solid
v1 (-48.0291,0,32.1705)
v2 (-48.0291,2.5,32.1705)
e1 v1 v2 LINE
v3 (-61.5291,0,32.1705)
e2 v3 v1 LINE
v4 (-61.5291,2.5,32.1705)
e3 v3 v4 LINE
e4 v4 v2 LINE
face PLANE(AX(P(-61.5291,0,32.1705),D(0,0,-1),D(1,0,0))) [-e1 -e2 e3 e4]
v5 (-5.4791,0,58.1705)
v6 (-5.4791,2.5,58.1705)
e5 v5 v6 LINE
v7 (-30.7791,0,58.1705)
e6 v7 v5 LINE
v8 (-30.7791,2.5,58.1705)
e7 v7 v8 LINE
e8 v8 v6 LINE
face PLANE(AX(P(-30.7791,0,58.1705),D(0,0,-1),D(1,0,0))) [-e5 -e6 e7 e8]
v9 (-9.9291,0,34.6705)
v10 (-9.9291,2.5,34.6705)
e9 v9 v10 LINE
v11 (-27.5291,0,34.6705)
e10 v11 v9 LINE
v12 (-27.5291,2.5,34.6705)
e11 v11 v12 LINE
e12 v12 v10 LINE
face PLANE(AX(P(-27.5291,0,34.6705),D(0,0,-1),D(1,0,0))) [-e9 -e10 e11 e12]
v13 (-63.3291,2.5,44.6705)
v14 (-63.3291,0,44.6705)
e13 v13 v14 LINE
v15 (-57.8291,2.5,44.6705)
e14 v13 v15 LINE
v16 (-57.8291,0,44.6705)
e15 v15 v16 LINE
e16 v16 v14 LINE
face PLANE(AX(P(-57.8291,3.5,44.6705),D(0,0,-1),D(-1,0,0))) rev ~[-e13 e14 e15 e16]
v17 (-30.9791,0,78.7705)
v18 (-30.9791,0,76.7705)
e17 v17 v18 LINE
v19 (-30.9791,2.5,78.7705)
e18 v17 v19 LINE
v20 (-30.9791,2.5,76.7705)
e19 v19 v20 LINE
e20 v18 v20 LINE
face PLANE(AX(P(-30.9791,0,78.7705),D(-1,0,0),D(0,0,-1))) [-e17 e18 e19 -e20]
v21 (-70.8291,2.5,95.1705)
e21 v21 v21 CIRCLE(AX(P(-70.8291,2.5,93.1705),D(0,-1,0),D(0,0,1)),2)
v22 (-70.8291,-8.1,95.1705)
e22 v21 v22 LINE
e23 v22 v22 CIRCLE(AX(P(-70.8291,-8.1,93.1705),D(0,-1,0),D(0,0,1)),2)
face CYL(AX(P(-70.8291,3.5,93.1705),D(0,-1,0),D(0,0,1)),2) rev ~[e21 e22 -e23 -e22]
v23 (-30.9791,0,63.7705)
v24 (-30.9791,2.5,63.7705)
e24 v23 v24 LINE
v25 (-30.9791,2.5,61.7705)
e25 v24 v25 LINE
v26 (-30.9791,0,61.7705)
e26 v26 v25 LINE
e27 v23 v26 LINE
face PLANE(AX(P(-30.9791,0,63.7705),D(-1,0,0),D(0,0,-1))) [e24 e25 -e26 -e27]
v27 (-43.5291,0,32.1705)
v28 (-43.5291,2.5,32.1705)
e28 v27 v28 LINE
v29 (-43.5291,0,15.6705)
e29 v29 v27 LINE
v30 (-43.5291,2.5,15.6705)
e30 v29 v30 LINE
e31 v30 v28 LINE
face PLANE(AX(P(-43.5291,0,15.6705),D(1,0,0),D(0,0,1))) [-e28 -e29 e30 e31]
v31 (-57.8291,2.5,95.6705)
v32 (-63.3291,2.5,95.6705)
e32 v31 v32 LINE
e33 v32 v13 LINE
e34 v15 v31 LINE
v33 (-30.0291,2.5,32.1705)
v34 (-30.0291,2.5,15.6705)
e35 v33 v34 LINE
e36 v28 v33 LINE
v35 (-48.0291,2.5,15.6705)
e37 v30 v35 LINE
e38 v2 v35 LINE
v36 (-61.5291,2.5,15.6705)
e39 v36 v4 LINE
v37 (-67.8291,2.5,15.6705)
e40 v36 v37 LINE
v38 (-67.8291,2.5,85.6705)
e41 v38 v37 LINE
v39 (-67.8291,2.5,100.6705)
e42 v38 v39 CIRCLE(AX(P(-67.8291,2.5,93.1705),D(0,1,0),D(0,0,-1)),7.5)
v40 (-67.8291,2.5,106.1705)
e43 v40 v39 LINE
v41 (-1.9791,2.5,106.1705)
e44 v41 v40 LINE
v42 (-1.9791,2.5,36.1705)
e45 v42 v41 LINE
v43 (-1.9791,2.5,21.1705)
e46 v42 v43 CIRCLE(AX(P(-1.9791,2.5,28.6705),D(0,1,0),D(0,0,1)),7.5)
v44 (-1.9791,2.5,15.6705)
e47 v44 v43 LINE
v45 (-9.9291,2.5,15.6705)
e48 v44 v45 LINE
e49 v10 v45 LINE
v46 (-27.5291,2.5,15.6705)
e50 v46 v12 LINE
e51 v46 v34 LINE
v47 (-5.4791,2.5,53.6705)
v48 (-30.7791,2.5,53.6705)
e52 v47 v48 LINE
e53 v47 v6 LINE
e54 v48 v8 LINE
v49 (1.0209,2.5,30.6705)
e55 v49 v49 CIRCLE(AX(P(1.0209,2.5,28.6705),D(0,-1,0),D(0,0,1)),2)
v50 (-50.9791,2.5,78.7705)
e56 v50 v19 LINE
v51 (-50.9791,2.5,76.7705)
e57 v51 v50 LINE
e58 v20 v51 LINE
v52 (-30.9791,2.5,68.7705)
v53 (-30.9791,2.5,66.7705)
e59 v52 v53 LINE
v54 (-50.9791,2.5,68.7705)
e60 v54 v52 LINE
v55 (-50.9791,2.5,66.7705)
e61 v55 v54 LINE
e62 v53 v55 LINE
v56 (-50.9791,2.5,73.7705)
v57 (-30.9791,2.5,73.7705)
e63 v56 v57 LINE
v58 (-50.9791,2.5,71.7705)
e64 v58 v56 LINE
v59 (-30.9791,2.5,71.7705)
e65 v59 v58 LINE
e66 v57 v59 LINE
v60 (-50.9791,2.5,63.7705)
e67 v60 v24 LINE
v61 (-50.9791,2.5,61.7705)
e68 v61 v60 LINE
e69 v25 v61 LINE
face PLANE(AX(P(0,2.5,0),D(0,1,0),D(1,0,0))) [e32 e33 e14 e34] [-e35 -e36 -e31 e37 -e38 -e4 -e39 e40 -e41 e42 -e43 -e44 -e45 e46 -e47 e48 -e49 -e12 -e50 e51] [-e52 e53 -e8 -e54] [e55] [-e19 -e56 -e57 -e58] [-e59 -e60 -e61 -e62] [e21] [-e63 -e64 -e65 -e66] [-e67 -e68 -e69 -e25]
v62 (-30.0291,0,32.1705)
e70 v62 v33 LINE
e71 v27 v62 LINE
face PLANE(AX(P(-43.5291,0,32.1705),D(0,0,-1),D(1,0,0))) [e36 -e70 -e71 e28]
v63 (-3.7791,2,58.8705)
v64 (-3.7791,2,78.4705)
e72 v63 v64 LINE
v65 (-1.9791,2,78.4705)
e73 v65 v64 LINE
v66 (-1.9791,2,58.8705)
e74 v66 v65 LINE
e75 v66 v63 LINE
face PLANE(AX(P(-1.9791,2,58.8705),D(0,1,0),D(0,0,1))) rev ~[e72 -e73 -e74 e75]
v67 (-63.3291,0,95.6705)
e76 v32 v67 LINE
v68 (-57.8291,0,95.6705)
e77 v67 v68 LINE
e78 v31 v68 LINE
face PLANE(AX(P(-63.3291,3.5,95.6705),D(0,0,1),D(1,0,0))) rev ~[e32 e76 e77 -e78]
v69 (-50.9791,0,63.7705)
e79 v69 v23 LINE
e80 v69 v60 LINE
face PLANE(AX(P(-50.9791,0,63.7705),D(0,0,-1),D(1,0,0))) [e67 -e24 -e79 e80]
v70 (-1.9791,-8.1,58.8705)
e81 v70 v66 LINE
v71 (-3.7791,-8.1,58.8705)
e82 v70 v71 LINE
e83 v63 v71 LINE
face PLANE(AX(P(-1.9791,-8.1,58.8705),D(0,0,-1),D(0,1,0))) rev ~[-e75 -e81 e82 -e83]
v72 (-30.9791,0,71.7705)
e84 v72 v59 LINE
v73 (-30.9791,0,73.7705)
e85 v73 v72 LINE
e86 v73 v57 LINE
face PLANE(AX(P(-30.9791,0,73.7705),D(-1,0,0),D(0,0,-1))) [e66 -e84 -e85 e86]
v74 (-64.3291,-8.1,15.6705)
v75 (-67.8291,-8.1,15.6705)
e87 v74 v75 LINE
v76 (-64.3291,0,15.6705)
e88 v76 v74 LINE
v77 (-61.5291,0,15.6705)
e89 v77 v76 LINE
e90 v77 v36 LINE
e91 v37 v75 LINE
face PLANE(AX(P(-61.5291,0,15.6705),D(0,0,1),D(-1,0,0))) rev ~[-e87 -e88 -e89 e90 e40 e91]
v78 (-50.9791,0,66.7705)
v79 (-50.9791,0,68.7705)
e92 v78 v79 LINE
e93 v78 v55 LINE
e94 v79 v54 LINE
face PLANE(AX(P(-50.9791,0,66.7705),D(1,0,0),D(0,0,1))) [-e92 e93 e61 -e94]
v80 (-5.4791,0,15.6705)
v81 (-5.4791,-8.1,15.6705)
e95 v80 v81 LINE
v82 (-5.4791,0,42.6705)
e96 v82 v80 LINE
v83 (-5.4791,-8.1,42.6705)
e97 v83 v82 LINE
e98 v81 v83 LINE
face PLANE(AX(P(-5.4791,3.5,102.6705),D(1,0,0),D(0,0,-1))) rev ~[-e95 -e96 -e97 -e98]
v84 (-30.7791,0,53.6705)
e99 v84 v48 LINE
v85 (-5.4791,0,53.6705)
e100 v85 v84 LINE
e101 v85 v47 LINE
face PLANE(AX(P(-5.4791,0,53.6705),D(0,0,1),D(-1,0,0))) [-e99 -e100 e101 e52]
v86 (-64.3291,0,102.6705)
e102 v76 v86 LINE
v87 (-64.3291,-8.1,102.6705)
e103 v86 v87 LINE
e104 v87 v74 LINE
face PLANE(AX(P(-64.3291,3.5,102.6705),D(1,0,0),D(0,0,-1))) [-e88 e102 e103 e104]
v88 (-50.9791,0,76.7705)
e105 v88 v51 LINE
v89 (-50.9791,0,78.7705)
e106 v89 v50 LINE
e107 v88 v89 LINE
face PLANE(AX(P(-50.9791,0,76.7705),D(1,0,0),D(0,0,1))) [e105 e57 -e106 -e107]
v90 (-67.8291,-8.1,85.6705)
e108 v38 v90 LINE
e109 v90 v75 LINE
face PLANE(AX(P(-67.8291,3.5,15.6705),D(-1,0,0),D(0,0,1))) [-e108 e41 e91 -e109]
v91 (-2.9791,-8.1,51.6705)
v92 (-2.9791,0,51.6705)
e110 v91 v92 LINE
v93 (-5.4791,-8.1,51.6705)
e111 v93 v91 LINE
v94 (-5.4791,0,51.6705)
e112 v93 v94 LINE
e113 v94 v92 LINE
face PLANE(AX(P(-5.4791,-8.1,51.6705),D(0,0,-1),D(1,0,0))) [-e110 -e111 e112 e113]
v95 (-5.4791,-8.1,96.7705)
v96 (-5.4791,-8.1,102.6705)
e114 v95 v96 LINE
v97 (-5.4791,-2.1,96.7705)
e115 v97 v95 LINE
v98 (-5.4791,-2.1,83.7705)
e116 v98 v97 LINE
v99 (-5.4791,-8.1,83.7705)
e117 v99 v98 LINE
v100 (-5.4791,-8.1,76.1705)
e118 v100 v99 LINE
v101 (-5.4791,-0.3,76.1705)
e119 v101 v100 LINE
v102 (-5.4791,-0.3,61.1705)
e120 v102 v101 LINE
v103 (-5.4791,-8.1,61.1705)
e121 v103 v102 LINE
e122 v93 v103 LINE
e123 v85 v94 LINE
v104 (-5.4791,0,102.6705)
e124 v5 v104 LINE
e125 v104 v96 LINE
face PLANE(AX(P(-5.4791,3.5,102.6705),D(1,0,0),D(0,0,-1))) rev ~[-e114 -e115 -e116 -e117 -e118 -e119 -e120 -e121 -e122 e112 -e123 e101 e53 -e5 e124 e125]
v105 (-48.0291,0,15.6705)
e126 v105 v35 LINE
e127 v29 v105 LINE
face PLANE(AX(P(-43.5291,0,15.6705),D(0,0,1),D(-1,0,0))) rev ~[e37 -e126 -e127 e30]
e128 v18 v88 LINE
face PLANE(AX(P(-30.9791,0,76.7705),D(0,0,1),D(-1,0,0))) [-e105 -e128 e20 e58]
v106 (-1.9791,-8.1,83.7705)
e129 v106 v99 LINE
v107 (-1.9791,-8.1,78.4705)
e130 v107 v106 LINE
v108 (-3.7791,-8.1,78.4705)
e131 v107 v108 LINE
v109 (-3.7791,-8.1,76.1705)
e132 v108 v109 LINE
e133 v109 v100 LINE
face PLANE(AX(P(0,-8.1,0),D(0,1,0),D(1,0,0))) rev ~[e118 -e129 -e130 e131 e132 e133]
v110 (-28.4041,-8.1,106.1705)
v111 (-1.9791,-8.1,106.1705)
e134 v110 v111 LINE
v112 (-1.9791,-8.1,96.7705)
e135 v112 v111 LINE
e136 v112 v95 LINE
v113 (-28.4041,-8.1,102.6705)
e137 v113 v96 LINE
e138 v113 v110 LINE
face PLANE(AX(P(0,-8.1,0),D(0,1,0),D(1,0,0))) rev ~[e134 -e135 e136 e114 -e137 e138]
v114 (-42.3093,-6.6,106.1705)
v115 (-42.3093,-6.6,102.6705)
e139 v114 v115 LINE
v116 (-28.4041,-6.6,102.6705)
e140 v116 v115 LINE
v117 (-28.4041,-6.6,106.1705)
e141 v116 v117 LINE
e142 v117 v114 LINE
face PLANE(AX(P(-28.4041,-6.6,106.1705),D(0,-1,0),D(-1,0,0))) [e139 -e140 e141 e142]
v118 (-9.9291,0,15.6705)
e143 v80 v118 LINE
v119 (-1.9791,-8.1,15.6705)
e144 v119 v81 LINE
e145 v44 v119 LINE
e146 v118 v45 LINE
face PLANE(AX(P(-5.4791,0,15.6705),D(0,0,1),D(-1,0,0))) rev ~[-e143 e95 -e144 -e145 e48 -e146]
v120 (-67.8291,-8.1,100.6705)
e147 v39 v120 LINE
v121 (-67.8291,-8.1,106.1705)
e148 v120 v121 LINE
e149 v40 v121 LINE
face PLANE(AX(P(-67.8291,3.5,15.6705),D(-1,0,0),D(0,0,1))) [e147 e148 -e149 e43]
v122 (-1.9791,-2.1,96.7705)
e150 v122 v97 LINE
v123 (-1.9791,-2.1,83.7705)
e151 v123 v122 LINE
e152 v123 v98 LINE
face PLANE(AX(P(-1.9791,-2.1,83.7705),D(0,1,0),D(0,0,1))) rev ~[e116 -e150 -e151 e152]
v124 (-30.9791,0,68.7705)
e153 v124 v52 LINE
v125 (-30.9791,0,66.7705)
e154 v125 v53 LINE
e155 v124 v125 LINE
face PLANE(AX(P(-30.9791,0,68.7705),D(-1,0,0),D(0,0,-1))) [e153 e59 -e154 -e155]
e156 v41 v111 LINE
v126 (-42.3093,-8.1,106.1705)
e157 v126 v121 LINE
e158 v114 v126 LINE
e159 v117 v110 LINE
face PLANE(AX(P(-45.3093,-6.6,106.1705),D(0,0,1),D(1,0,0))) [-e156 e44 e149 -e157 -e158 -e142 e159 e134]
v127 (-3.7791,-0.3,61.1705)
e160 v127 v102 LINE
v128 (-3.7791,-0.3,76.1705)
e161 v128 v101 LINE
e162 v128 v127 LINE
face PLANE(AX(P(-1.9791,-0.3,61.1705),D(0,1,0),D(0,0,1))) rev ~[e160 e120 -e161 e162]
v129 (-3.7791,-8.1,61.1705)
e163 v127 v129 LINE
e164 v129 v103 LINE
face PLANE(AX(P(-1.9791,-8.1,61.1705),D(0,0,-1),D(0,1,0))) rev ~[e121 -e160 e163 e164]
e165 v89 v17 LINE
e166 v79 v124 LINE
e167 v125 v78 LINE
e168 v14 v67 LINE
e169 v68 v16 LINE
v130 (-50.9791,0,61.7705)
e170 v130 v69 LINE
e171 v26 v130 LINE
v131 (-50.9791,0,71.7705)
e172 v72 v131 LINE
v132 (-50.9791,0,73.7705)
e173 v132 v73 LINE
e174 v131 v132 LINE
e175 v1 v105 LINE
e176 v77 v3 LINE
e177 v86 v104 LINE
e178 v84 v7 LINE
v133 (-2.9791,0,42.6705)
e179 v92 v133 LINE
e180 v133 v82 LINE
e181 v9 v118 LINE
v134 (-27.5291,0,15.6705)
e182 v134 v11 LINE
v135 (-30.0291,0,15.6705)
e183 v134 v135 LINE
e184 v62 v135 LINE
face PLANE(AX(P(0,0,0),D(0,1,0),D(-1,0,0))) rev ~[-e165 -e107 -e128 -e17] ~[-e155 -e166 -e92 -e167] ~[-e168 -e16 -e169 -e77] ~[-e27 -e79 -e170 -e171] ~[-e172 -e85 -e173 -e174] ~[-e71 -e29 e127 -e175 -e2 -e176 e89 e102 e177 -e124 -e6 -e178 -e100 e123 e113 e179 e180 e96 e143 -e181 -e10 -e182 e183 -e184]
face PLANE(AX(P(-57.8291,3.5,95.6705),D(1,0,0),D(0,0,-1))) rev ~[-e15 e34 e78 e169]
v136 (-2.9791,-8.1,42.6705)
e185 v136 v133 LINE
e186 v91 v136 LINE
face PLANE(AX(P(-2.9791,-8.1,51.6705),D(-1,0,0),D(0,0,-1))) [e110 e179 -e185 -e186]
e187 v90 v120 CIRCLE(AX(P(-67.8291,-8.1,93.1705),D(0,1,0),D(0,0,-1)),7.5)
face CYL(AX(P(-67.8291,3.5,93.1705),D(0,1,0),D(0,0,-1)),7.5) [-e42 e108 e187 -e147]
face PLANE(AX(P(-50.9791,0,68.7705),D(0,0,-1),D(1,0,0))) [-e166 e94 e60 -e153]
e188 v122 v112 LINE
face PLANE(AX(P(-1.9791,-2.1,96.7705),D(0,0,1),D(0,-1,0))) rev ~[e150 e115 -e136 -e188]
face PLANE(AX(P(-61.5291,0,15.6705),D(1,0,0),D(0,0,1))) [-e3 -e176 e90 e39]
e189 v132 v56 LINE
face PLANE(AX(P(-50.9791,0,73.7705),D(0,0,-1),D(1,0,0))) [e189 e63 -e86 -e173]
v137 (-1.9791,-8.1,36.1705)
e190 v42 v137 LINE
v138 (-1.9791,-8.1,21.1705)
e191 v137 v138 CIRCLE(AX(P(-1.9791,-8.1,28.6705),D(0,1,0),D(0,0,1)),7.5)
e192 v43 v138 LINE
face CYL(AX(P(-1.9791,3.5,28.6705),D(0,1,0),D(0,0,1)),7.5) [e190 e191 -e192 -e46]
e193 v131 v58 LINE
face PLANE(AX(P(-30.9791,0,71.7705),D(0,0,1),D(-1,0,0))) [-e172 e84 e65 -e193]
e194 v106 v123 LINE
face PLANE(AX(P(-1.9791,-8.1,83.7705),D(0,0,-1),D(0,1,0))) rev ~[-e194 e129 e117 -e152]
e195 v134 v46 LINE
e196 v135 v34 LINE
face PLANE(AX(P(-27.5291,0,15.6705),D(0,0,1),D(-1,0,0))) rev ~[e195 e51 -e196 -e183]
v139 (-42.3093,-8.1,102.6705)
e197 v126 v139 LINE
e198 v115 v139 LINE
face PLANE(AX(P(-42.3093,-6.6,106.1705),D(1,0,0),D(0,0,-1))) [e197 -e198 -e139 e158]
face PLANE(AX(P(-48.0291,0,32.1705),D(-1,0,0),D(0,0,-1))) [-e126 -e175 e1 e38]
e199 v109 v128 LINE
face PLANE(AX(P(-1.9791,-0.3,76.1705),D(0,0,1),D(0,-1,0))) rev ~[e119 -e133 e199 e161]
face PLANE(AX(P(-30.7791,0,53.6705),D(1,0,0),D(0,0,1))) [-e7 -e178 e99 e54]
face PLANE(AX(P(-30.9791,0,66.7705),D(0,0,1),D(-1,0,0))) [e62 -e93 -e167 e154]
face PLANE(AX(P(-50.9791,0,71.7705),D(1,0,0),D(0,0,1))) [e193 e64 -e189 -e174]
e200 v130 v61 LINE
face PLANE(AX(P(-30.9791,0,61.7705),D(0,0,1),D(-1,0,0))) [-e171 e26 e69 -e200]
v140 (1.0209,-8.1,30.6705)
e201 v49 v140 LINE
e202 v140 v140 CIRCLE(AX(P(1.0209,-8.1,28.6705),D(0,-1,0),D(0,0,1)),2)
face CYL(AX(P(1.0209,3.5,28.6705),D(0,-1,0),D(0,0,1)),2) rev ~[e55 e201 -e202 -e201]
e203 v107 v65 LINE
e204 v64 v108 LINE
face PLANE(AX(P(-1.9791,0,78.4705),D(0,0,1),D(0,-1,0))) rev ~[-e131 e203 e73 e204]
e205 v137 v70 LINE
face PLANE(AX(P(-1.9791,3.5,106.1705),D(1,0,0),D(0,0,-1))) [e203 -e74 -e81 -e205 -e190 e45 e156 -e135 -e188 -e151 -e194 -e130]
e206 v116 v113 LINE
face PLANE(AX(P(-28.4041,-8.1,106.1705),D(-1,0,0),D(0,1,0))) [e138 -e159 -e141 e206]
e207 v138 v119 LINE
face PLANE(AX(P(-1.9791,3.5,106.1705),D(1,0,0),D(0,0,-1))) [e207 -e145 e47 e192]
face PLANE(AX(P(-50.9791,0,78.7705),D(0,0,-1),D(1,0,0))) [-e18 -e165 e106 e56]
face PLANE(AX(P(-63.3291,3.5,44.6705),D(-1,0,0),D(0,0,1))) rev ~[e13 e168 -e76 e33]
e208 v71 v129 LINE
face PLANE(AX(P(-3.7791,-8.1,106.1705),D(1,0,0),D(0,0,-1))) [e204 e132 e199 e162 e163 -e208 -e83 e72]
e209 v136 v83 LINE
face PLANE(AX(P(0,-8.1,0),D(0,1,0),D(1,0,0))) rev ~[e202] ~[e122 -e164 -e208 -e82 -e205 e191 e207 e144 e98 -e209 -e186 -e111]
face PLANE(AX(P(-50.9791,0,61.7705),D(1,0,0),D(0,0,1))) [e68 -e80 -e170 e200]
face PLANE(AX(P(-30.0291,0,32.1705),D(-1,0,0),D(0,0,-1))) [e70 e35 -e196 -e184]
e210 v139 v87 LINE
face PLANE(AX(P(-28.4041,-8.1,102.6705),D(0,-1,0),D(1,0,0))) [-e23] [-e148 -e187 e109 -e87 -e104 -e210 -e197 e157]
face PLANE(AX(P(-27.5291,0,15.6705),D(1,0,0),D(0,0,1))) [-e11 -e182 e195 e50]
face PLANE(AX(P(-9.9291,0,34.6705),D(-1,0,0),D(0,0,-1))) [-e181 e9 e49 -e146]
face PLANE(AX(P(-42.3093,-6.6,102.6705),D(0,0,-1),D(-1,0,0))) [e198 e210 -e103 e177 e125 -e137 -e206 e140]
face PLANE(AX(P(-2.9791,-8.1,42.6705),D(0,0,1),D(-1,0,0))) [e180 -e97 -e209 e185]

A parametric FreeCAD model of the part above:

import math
import FreeCAD as App
import Part
import Sketcher

V = App.Vector


def add_polygon(sketch, points):
    """Adds a closed chain of lines whose ends are joined by coincident constraints."""
    first, n = sketch.GeometryCount, len(points)
    for a, b in zip(points, points[1:] + points[:1]):
        sketch.addGeometry(Part.LineSegment(App.Vector(*a, 0), App.Vector(*b, 0)), False)
    for i in range(n):
        sketch.addConstraint(Sketcher.Constraint("Coincident", first + i, 2, first + (i + 1) % n, 1))

doc = App.newDocument("Part")
body = doc.addObject("PartDesign::Body", "Body")

# Sketch on XZ plane
sketch1 = body.newObject("Sketcher::SketchObject", "Sketch")
sketch1.AttachmentSupport = (doc.getObject("XZ_Plane"), [""])
sketch1.MapMode = "FlatFace"
add_polygon(sketch1, [(-61.5, 15.7), (-64.3, 15.7), (-64.3, 102.7), (-5.5, 102.7), (-5.5, 58.2), (-30.8, 58.2), (-30.8, 53.7), (-5.5, 53.7), (-5.5, 15.7), (-9.9, 15.7), (-9.9, 34.7), (-27.5, 34.7), (-27.5, 15.7), (-30, 15.7), (-30, 32.2), (-43.5, 32.2), (-43.5, 15.7), (-48, 15.7), (-48, 32.2), (-61.5, 32.2)])  # lines 0-19
add_polygon(sketch1, [(-31, 63.8), (-51, 63.8), (-51, 61.8), (-31, 61.8)])  # lines 20-23
add_polygon(sketch1, [(-31, 68.8), (-51, 68.8), (-51, 66.8), (-31, 66.8)])  # lines 24-27
add_polygon(sketch1, [(-31, 73.8), (-51, 73.8), (-51, 71.8), (-31, 71.8)])  # lines 28-31
add_polygon(sketch1, [(-31, 78.8), (-51, 78.8), (-51, 76.8), (-31, 76.8)])  # lines 32-35
sketch1.addConstraint(Sketcher.Constraint("Horizontal", 0))
sketch1.addConstraint(Sketcher.Constraint("Vertical", 1))
sketch1.addConstraint(Sketcher.Constraint("Horizontal", 2))
sketch1.addConstraint(Sketcher.Constraint("Vertical", 3))
sketch1.addConstraint(Sketcher.Constraint("Horizontal", 4))
sketch1.addConstraint(Sketcher.Constraint("Vertical", 5))
sketch1.addConstraint(Sketcher.Constraint("Horizontal", 6))
sketch1.addConstraint(Sketcher.Constraint("Vertical", 7))
sketch1.addConstraint(Sketcher.Constraint("Horizontal", 8))
sketch1.addConstraint(Sketcher.Constraint("Vertical", 9))
sketch1.addConstraint(Sketcher.Constraint("Horizontal", 10))
sketch1.addConstraint(Sketcher.Constraint("Vertical", 11))
sketch1.addConstraint(Sketcher.Constraint("Horizontal", 12))
sketch1.addConstraint(Sketcher.Constraint("Vertical", 13))
sketch1.addConstraint(Sketcher.Constraint("Horizontal", 14))
sketch1.addConstraint(Sketcher.Constraint("Vertical", 15))
sketch1.addConstraint(Sketcher.Constraint("Horizontal", 16))
sketch1.addConstraint(Sketcher.Constraint("Vertical", 17))
sketch1.addConstraint(Sketcher.Constraint("Horizontal", 18))
sketch1.addConstraint(Sketcher.Constraint("Vertical", 19))
sketch1.addConstraint(Sketcher.Constraint("Horizontal", 20))
sketch1.addConstraint(Sketcher.Constraint("Vertical", 21))
sketch1.addConstraint(Sketcher.Constraint("Horizontal", 22))
sketch1.addConstraint(Sketcher.Constraint("Vertical", 23))
sketch1.addConstraint(Sketcher.Constraint("Horizontal", 24))
sketch1.addConstraint(Sketcher.Constraint("Vertical", 25))
sketch1.addConstraint(Sketcher.Constraint("Horizontal", 26))
sketch1.addConstraint(Sketcher.Constraint("Vertical", 27))
sketch1.addConstraint(Sketcher.Constraint("Horizontal", 28))
sketch1.addConstraint(Sketcher.Constraint("Vertical", 29))
sketch1.addConstraint(Sketcher.Constraint("Horizontal", 30))
sketch1.addConstraint(Sketcher.Constraint("Vertical", 31))
sketch1.addConstraint(Sketcher.Constraint("Horizontal", 32))
sketch1.addConstraint(Sketcher.Constraint("Vertical", 33))
sketch1.addConstraint(Sketcher.Constraint("Horizontal", 34))
sketch1.addConstraint(Sketcher.Constraint("Vertical", 35))
sketch1.addConstraint(Sketcher.Constraint("Horizontal", 0, 2, 7, 2))
sketch1.addConstraint(Sketcher.Constraint("Horizontal", 8, 2, 11, 2))
sketch1.addConstraint(Sketcher.Constraint("Horizontal", 12, 2, 15, 2))
sketch1.addConstraint(Sketcher.Constraint("Horizontal", 14, 2, 17, 2))
sketch1.addConstraint(Sketcher.Constraint("Vertical", 3, 2, 6, 2))
sketch1.addConstraint(Sketcher.Constraint("Vertical", 21, 2, 24, 2))
sketch1.addConstraint(Sketcher.Constraint("Vertical", 23, 2, 26, 2))
sketch1.addConstraint(Sketcher.Constraint("Vertical", 25, 2, 28, 2))
sketch1.addConstraint(Sketcher.Constraint("Vertical", 27, 2, 30, 2))
sketch1.addConstraint(Sketcher.Constraint("Vertical", 29, 2, 32, 2))
sketch1.addConstraint(Sketcher.Constraint("Vertical", 31, 2, 34, 2))
sketch1.addConstraint(Sketcher.Constraint("Equal", 14, 18))
sketch1.addConstraint(Sketcher.Constraint("Equal", 16, 5))
sketch1.addConstraint(Sketcher.Constraint("Equal", 23, 25))
sketch1.addConstraint(Sketcher.Constraint("Equal", 27, 29))
sketch1.addConstraint(Sketcher.Constraint("Equal", 31, 33))
sketch1.addConstraint(Sketcher.Constraint("DistanceY", 1, 1, 1, 2, 87.0))
sketch1.addConstraint(Sketcher.Constraint("DistanceY", 7, 2, 7, 1, 38.0))
sketch1.addConstraint(Sketcher.Constraint("DistanceY", 9, 1, 9, 2, 19.0))
sketch1.addConstraint(Sketcher.Constraint("DistanceX", 0, 2, 0, 1, 2.8))
sketch1.addConstraint(Sketcher.Constraint("DistanceX", 4, 2, 4, 1, 25.3))
sketch1.addConstraint(Sketcher.Constraint("DistanceX", 10, 2, 10, 1, 17.6))
sketch1.addConstraint(Sketcher.Constraint("DistanceX", 12, 2, 12, 1, 2.5))
sketch1.addConstraint(Sketcher.Constraint("DistanceX", 14, 2, 14, 1, 13.5))
sketch1.addConstraint(Sketcher.Constraint("DistanceX", 16, 2, 16, 1, 4.5))
sketch1.addConstraint(Sketcher.Constraint("DistanceY", 20, 2, 29, 2, 8.0))
sketch1.addConstraint(Sketcher.Constraint("DistanceY", 24, 2, 33, 2, 8.0))
sketch1.addConstraint(Sketcher.Constraint("DistanceX", 8, 2, 8, 1, 4.45))
sketch1.addConstraint(Sketcher.Constraint("DistanceY", 13, 2, 10, 2, 2.5))
sketch1.addConstraint(Sketcher.Constraint("DistanceX", 20, 2, 20, 1, 20.0))
sketch1.addConstraint(Sketcher.Constraint("DistanceY", 21, 2, 21, 1, 2.0))
sketch1.addConstraint(Sketcher.Constraint("DistanceY", 20, 2, 24, 2, 5.0))
sketch1.addConstraint(Sketcher.Constraint("DistanceX", 20, 2, 4, 2, 20.2))
sketch1.addConstraint(Sketcher.Constraint("DistanceY", 4, 2, 20, 2, 5.6))
sketch1.addConstraint(Sketcher.Constraint("DistanceX", 0, 2, -1, 1, 64.329))
sketch1.addConstraint(Sketcher.Constraint("DistanceY", -1, 1, 0, 2, 15.6705))
pad1 = body.newObject("PartDesign::Pad", "Pad")
pad1.Profile = sketch1
pad1.Length = 3.5
pad1.Reversed = True

# Sketch on XZ plane
sketch2 = body.newObject("Sketcher::SketchObject", "Sketch001")
sketch2.AttachmentSupport = (doc.getObject("XZ_Plane"), [""])
sketch2.MapMode = "FlatFace"
sketch2.AttachmentOffset = App.Placement(V(0, 0, -3.5), App.Rotation())
add_polygon(sketch2, [(-58, 96), (-58, 45), (-63, 45), (-63, 96)])  # lines 0-3
sketch2.addConstraint(Sketcher.Constraint("Vertical", 0))
sketch2.addConstraint(Sketcher.Constraint("Horizontal", 1))
sketch2.addConstraint(Sketcher.Constraint("Vertical", 2))
sketch2.addConstraint(Sketcher.Constraint("Horizontal", 3))
sketch2.addConstraint(Sketcher.Constraint("DistanceY", 0, 2, 0, 1, 51.0))
sketch2.addConstraint(Sketcher.Constraint("DistanceX", 1, 2, 1, 1, 5.5))
sketch2.addConstraint(Sketcher.Constraint("DistanceX", 0, 2, -1, 1, 57.829))
sketch2.addConstraint(Sketcher.Constraint("DistanceY", -1, 1, 0, 2, 44.6705))
pocket1 = body.newObject("PartDesign::Pocket", "Pocket")
pocket1.Profile = sketch2
pocket1.Type = "ThroughAll"
pocket1.Reversed = True

# Sketch on XZ plane
sketch3 = body.newObject("Sketcher::SketchObject", "Sketch002")
sketch3.AttachmentSupport = (doc.getObject("XZ_Plane"), [""])
sketch3.MapMode = "FlatFace"
sketch3.AttachmentOffset = App.Placement(V(0, 0, -3.5), App.Rotation())
add_polygon(sketch3, [(-5.5, 102.7), (-64.3, 102.7), (-64.3, 15.7), (-67.8, 15.7), (-67.8, 106.2), (-2, 106.2), (-2, 15.7), (-5.5, 15.7)])  # lines 0-7
sketch3.addConstraint(Sketcher.Constraint("Horizontal", 0))
sketch3.addConstraint(Sketcher.Constraint("Vertical", 1))
sketch3.addConstraint(Sketcher.Constraint("Horizontal", 2))
sketch3.addConstraint(Sketcher.Constraint("Vertical", 3))
sketch3.addConstraint(Sketcher.Constraint("Horizontal", 4))
sketch3.addConstraint(Sketcher.Constraint("Vertical", 5))
sketch3.addConstraint(Sketcher.Constraint("Horizontal", 6))
sketch3.addConstraint(Sketcher.Constraint("Vertical", 7))
sketch3.addConstraint(Sketcher.Constraint("Horizontal", 2, 2, 5, 2))
sketch3.addConstraint(Sketcher.Constraint("Equal", 2, 6))
sketch3.addConstraint(Sketcher.Constraint("DistanceX", 2, 2, 2, 1, 3.5))
sketch3.addConstraint(Sketcher.Constraint("DistanceY", 0, 2, 3, 2, 3.5))
sketch3.addConstraint(Sketcher.Constraint("DistanceY", 1, 2, 1, 1, 87.0))
sketch3.addConstraint(Sketcher.Constraint("DistanceX", 0, 2, 0, 1, 58.85))
sketch3.addConstraint(Sketcher.Constraint("DistanceX", 0, 2, -1, 1, 64.329))
sketch3.addConstraint(Sketcher.Constraint("DistanceY", -1, 1, 0, 2, 102.6705))
pad2 = body.newObject("PartDesign::Pad", "Pad001")
pad2.Profile = sketch3
pad2.Length = 11.6

# Sketch on XZ plane
sketch4 = body.newObject("Sketcher::SketchObject", "Sketch003")
sketch4.AttachmentSupport = (doc.getObject("XZ_Plane"), [""])
sketch4.MapMode = "FlatFace"
sketch4.AttachmentOffset = App.Placement(V(0, 0, -3.5), App.Rotation())
sketch4.addGeometry(Part.LineSegment(V(-2, 21, 0), V(-2, 36, 0)), False)
sketch4.addGeometry(Part.ArcOfCircle(Part.Circle(V(-2, 29, 0), V(0, 0, 1), 7), math.radians(-90), math.radians(90)), False)
sketch4.addGeometry(Part.LineSegment(V(-2, 86, 0), V(-2, 101, 0)), False)
sketch4.addGeometry(Part.ArcOfCircle(Part.Circle(V(-2, 93, 0), V(0, 0, 1), 8), math.radians(-90), math.radians(90)), False)
sketch4.addGeometry(Part.LineSegment(V(-68, 101, 0), V(-68, 86, 0)), False)
sketch4.addGeometry(Part.ArcOfCircle(Part.Circle(V(-68, 93, 0), V(0, 0, 1), 8), math.radians(90), math.radians(270)), False)
sketch4.addGeometry(Part.LineSegment(V(-68, 36, 0), V(-68, 21, 0)), False)
sketch4.addGeometry(Part.ArcOfCircle(Part.Circle(V(-68, 29, 0), V(0, 0, 1), 8), math.radians(90), math.radians(270)), False)
sketch4.addConstraint(Sketcher.Constraint("Coincident", 0, 1, 1, 1))
sketch4.addConstraint(Sketcher.Constraint("Coincident", 1, 2, 0, 2))
sketch4.addConstraint(Sketcher.Constraint("Coincident", 2, 1, 3, 1))
sketch4.addConstraint(Sketcher.Constraint("Coincident", 3, 2, 2, 2))
sketch4.addConstraint(Sketcher.Constraint("Coincident", 4, 1, 5, 1))
sketch4.addConstraint(Sketcher.Constraint("Coincident", 5, 2, 4, 2))
sketch4.addConstraint(Sketcher.Constraint("Coincident", 6, 1, 7, 1))
sketch4.addConstraint(Sketcher.Constraint("Coincident", 7, 2, 6, 2))
sketch4.addConstraint(Sketcher.Constraint("Vertical", 0))
sketch4.addConstraint(Sketcher.Constraint("Vertical", 2))
sketch4.addConstraint(Sketcher.Constraint("Vertical", 4))
sketch4.addConstraint(Sketcher.Constraint("Vertical", 6))
sketch4.addConstraint(Sketcher.Constraint("Equal", 1, 3))
sketch4.addConstraint(Sketcher.Constraint("Equal", 3, 5))
sketch4.addConstraint(Sketcher.Constraint("Equal", 5, 7))
sketch4.addConstraint(Sketcher.Constraint("Horizontal", 3, 3, 5, 3))
sketch4.addConstraint(Sketcher.Constraint("Horizontal", 1, 3, 7, 3))
sketch4.addConstraint(Sketcher.Constraint("Vertical", 1, 3, 3, 3))
sketch4.addConstraint(Sketcher.Constraint("Vertical", 5, 3, 7, 3))
sketch4.addConstraint(Sketcher.Constraint("Vertical", 3, 3, 0, 1))
sketch4.addConstraint(Sketcher.Constraint("Vertical", 1, 2, 2, 1))
sketch4.addConstraint(Sketcher.Constraint("Vertical", 7, 3, 4, 1))
sketch4.addConstraint(Sketcher.Constraint("Vertical", 5, 2, 6, 1))
sketch4.addConstraint(Sketcher.Constraint("Radius", 1, 7.5))
sketch4.addConstraint(Sketcher.Constraint("DistanceY", 0, 1, 3, 3, 72.0))
sketch4.addConstraint(Sketcher.Constraint("DistanceX", 5, 3, 3, 3, 65.85))
sketch4.addConstraint(Sketcher.Constraint("DistanceX", 1, 3, -1, 1, 1.979))
sketch4.addConstraint(Sketcher.Constraint("DistanceY", -1, 1, 1, 3, 28.6705))
pad3 = body.newObject("PartDesign::Pad", "Pad002")
pad3.Profile = sketch4
pad3.Length = 11.6

# Sketch on XZ plane
sketch5 = body.newObject("Sketcher::SketchObject", "Sketch004")
sketch5.AttachmentSupport = (doc.getObject("XZ_Plane"), [""])
sketch5.MapMode = "FlatFace"
sketch5.AttachmentOffset = App.Placement(V(0, 0, -3.5), App.Rotation())
sketch5.addGeometry(Part.Circle(V(-70.8, 28.7, 0), V(0, 0, 1), 2), False)
sketch5.addGeometry(Part.Circle(V(1, 28.7, 0), V(0, 0, 1), 2), False)
sketch5.addGeometry(Part.Circle(V(1, 93.2, 0), V(0, 0, 1), 2), False)
sketch5.addGeometry(Part.Circle(V(-70.8, 93.2, 0), V(0, 0, 1), 2), False)
sketch5.addConstraint(Sketcher.Constraint("Equal", 0, 1))
sketch5.addConstraint(Sketcher.Constraint("Equal", 1, 2))
sketch5.addConstraint(Sketcher.Constraint("Equal", 2, 3))
sketch5.addConstraint(Sketcher.Constraint("Horizontal", 0, 3, 1, 3))
sketch5.addConstraint(Sketcher.Constraint("Horizontal", 2, 3, 3, 3))
sketch5.addConstraint(Sketcher.Constraint("Vertical", 1, 3, 2, 3))
sketch5.addConstraint(Sketcher.Constraint("Vertical", 0, 3, 3, 3))
sketch5.addConstraint(Sketcher.Constraint("Diameter", 0, 4.0))
sketch5.addConstraint(Sketcher.Constraint("DistanceY", 1, 3, 2, 3, 64.5))
sketch5.addConstraint(Sketcher.Constraint("DistanceX", 0, 3, 1, 3, 71.85))
sketch5.addConstraint(Sketcher.Constraint("DistanceX", 0, 3, -1, 1, 70.829))
sketch5.addConstraint(Sketcher.Constraint("DistanceY", -1, 1, 0, 3, 28.6705))
doc.recompute()
hole = body.newObject("PartDesign::Hole", "Hole")
hole.Profile = sketch5
hole.ThreadType = "None"
hole.Diameter = 4
hole.DepthType = "ThroughAll"
hole.Reversed = True

# Sketch on XZ plane
sketch6 = body.newObject("Sketcher::SketchObject", "Sketch005")
sketch6.AttachmentSupport = (doc.getObject("XZ_Plane"), [""])
sketch6.MapMode = "FlatFace"
sketch6.AttachmentOffset = App.Placement(V(0, 0, -3.5), App.Rotation())
add_polygon(sketch6, [(-2, 74), (-2, 103), (11, 103), (11, 74)])  # lines 0-3
add_polygon(sketch6, [(-68, 38), (-68, 17), (-78, 17), (-78, 38)])  # lines 4-7
sketch6.addConstraint(Sketcher.Constraint("Vertical", 0))
sketch6.addConstraint(Sketcher.Constraint("Horizontal", 1))
sketch6.addConstraint(Sketcher.Constraint("Vertical", 2))
sketch6.addConstraint(Sketcher.Constraint("Horizontal", 3))
sketch6.addConstraint(Sketcher.Constraint("Vertical", 4))
sketch6.addConstraint(Sketcher.Constraint("Horizontal", 5))
sketch6.addConstraint(Sketcher.Constraint("Vertical", 6))
sketch6.addConstraint(Sketcher.Constraint("Horizontal", 7))
sketch6.addConstraint(Sketcher.Constraint("DistanceX", 4, 2, 3, 2, 65.85))
sketch6.addConstraint(Sketcher.Constraint("DistanceX", 1, 1, 1, 2, 13.4602))
sketch6.addConstraint(Sketcher.Constraint("DistanceX", 5, 2, 5, 1, 9.6736))
sketch6.addConstraint(Sketcher.Constraint("DistanceY", 0, 1, 0, 2, 29.1452))
sketch6.addConstraint(Sketcher.Constraint("DistanceY", 4, 2, 4, 1, 20.9716))
sketch6.addConstraint(Sketcher.Constraint("DistanceX", 0, 2, -1, 1, 1.979))
sketch6.addConstraint(Sketcher.Constraint("DistanceY", -1, 1, 4, 2, 17.186))
sketch6.addConstraint(Sketcher.Constraint("DistanceY", 6, 2, 0, 2, 65.263))
pocket2 = body.newObject("PartDesign::Pocket", "Pocket001")
pocket2.Profile = sketch6
pocket2.Length = 20
pocket2.Reversed = True

# Sketch on XY plane
sketch7 = body.newObject("Sketcher::SketchObject", "Sketch006")
sketch7.AttachmentSupport = (doc.getObject("XY_Plane"), [""])
sketch7.MapMode = "FlatFace"
sketch7.AttachmentOffset = App.Placement(V(0, 0, 106.1705), App.Rotation())
add_polygon(sketch7, [(-41.4, -8.1), (-28.4, -8.1), (-28.4, -6.6), (-41.4, -6.6)])  # lines 0-3
sketch7.addConstraint(Sketcher.Constraint("Horizontal", 0))
sketch7.addConstraint(Sketcher.Constraint("Vertical", 1))
sketch7.addConstraint(Sketcher.Constraint("Horizontal", 2))
sketch7.addConstraint(Sketcher.Constraint("Vertical", 3))
sketch7.addConstraint(Sketcher.Constraint("DistanceX", 0, 1, 0, 2, 13.0))
sketch7.addConstraint(Sketcher.Constraint("DistanceY", 1, 1, 1, 2, 1.5))
sketch7.addConstraint(Sketcher.Constraint("DistanceY", 0, 2, -1, 1, 8.1))
sketch7.addConstraint(Sketcher.Constraint("DistanceX", 0, 2, -1, 1, 28.404))
pocket3 = body.newObject("PartDesign::Pocket", "Pocket002")
pocket3.Profile = sketch7
pocket3.Length = 20
pocket3.Midplane = True

# Sketch on YZ plane
sketch8 = body.newObject("Sketcher::SketchObject", "Sketch007")
sketch8.AttachmentSupport = (doc.getObject("YZ_Plane"), [""])
sketch8.MapMode = "FlatFace"
sketch8.AttachmentOffset = App.Placement(V(0, 0, -1.9791), App.Rotation())
add_polygon(sketch8, [(-2, 97), (-8, 97), (-8, 84), (-2, 84)])  # lines 0-3
add_polygon(sketch8, [(0, 76), (-8, 76), (-8, 61), (0, 61)])  # lines 4-7
sketch8.addConstraint(Sketcher.Constraint("Horizontal", 0))
sketch8.addConstraint(Sketcher.Constraint("Vertical", 1))
sketch8.addConstraint(Sketcher.Constraint("Horizontal", 2))
sketch8.addConstraint(Sketcher.Constraint("Vertical", 3))
sketch8.addConstraint(Sketcher.Constraint("Horizontal", 4))
sketch8.addConstraint(Sketcher.Constraint("Vertical", 5))
sketch8.addConstraint(Sketcher.Constraint("Horizontal", 6))
sketch8.addConstraint(Sketcher.Constraint("Vertical", 7))
sketch8.addConstraint(Sketcher.Constraint("Vertical", 1, 2, 4, 2))
sketch8.addConstraint(Sketcher.Constraint("DistanceX", 0, 2, 0, 1, 6.0))
sketch8.addConstraint(Sketcher.Constraint("DistanceY", 1, 2, 1, 1, 13.0))
sketch8.addConstraint(Sketcher.Constraint("DistanceY", 5, 2, 5, 1, 15.0))
sketch8.addConstraint(Sketcher.Constraint("DistanceX", 4, 2, 4, 1, 7.8))
sketch8.addConstraint(Sketcher.Constraint("DistanceX", 0, 2, -1, 1, 8.1))
sketch8.addConstraint(Sketcher.Constraint("DistanceY", 4, 2, 1, 2, 7.6))
sketch8.addConstraint(Sketcher.Constraint("DistanceY", -1, 1, 0, 2, 96.7705))
pocket4 = body.newObject("PartDesign::Pocket", "Pocket003")
pocket4.Profile = sketch8
pocket4.Length = 20

# Sketch on YZ plane
sketch9 = body.newObject("Sketcher::SketchObject", "Sketch008")
sketch9.AttachmentSupport = (doc.getObject("YZ_Plane"), [""])
sketch9.MapMode = "FlatFace"
sketch9.AttachmentOffset = App.Placement(V(0, 0, -1.9791), App.Rotation())
add_polygon(sketch9, [(-8.1, 78.5), (-8.1, 76.2), (-0.3, 76.2), (-0.3, 61.2), (-8.1, 61.2), (-8.1, 58.9), (2, 58.9), (2, 78.5)])  # lines 0-7
sketch9.addConstraint(Sketcher.Constraint("Vertical", 0))
sketch9.addConstraint(Sketcher.Constraint("Horizontal", 1))
sketch9.addConstraint(Sketcher.Constraint("Vertical", 2))
sketch9.addConstraint(Sketcher.Constraint("Horizontal", 3))
sketch9.addConstraint(Sketcher.Constraint("Vertical", 4))
sketch9.addConstraint(Sketcher.Constraint("Horizontal", 5))
sketch9.addConstraint(Sketcher.Constraint("Vertical", 6))
sketch9.addConstraint(Sketcher.Constraint("Horizontal", 7))
sketch9.addConstraint(Sketcher.Constraint("Vertical", 0, 2, 3, 2))
sketch9.addConstraint(Sketcher.Constraint("Equal", 0, 4))
sketch9.addConstraint(Sketcher.Constraint("DistanceY", 0, 2, 0, 1, 2.3))
sketch9.addConstraint(Sketcher.Constraint("DistanceX", 2, 2, 5, 2, 2.3))
sketch9.addConstraint(Sketcher.Constraint("DistanceY", 2, 2, 2, 1, 15.0))
sketch9.addConstraint(Sketcher.Constraint("DistanceX", 1, 1, 1, 2, 7.8))
sketch9.addConstraint(Sketcher.Constraint("DistanceX", -1, 1, 5, 2, 2.0))
sketch9.addConstraint(Sketcher.Constraint("DistanceY", -1, 1, 0, 2, 76.1705))
pocket5 = body.newObject("PartDesign::Pocket", "Pocket004")
pocket5.Profile = sketch9
pocket5.Length = 1.8

# Sketch on XZ plane
sketch10 = body.newObject("Sketcher::SketchObject", "Sketch009")
sketch10.AttachmentSupport = (doc.getObject("XZ_Plane"), [""])
sketch10.MapMode = "FlatFace"
sketch10.AttachmentOffset = App.Placement(V(0, 0, 8.1), App.Rotation())
add_polygon(sketch10, [(-5.5, 51.7), (-5.5, 42.7), (-3, 42.7), (-3, 51.7)])  # lines 0-3
sketch10.addConstraint(Sketcher.Constraint("Vertical", 0))
sketch10.addConstraint(Sketcher.Constraint("Horizontal", 1))
sketch10.addConstraint(Sketcher.Constraint("Vertical", 2))
sketch10.addConstraint(Sketcher.Constraint("Horizontal", 3))
sketch10.addConstraint(Sketcher.Constraint("DistanceX", 1, 1, 1, 2, 2.5))
sketch10.addConstraint(Sketcher.Constraint("DistanceY", 0, 2, 0, 1, 9.0))
sketch10.addConstraint(Sketcher.Constraint("DistanceX", 0, 2, -1, 1, 5.479))
sketch10.addConstraint(Sketcher.Constraint("DistanceY", -1, 1, 0, 2, 42.6705))
pocket6 = body.newObject("PartDesign::Pocket", "Pocket005")
pocket6.Profile = sketch10
pocket6.Length = 8.1

# Sketch on XZ plane
sketch11 = body.newObject("Sketcher::SketchObject", "Sketch010")
sketch11.AttachmentSupport = (doc.getObject("XZ_Plane"), [""])
sketch11.MapMode = "FlatFace"
sketch11.AttachmentOffset = App.Placement(V(0, 0, 8.1), App.Rotation())
add_polygon(sketch11, [(-41.3, 106.2), (-45.3, 106.2), (-45.3, 102.7), (-41.3, 102.7)])  # lines 0-3
sketch11.addConstraint(Sketcher.Constraint("Horizontal", 0))
sketch11.addConstraint(Sketcher.Constraint("Vertical", 1))
sketch11.addConstraint(Sketcher.Constraint("Horizontal", 2))
sketch11.addConstraint(Sketcher.Constraint("Vertical", 3))
sketch11.addConstraint(Sketcher.Constraint("DistanceX", 0, 2, 0, 1, 4.0))
sketch11.addConstraint(Sketcher.Constraint("DistanceY", 1, 2, 1, 1, 3.5))
sketch11.addConstraint(Sketcher.Constraint("DistanceX", 0, 2, -1, 1, 45.3093))
sketch11.addConstraint(Sketcher.Constraint("DistanceY", -1, 1, 0, 2, 106.1705))
pocket7 = body.newObject("PartDesign::Pocket", "Pocket006")
pocket7.Profile = sketch11
pocket7.Length = 1.5

# Sketch on XZ plane
sketch12 = body.newObject("Sketcher::SketchObject", "Sketch011")
sketch12.AttachmentSupport = (doc.getObject("XZ_Plane"), [""])
sketch12.MapMode = "FlatFace"
sketch12.AttachmentOffset = App.Placement(V(0, 0, -3.5), App.Rotation())
add_polygon(sketch12, [(13, 11), (-78, 11), (-78, 110), (13, 110)])  # lines 0-3
sketch12.addConstraint(Sketcher.Constraint("Horizontal", 0))
sketch12.addConstraint(Sketcher.Constraint("Vertical", 1))
sketch12.addConstraint(Sketcher.Constraint("Horizontal", 2))
sketch12.addConstraint(Sketcher.Constraint("Vertical", 3))
sketch12.addConstraint(Sketcher.Constraint("DistanceX", 0, 2, 0, 1, 91.425))
sketch12.addConstraint(Sketcher.Constraint("DistanceY", 1, 1, 1, 2, 99.3486))
sketch12.addConstraint(Sketcher.Constraint("DistanceX", -1, 1, 2, 2, 12.952))
sketch12.addConstraint(Sketcher.Constraint("DistanceY", -1, 1, 0, 2, 10.8186))
pocket8 = body.newObject("PartDesign::Pocket", "Pocket007")
pocket8.Profile = sketch12
pocket8.Length = 1
pocket8.Reversed = True

# Sketch on XZ plane
sketch13 = body.newObject("Sketcher::SketchObject", "Sketch012")
sketch13.AttachmentSupport = (doc.getObject("XZ_Plane"), [""])
sketch13.MapMode = "FlatFace"
sketch13.AttachmentOffset = App.Placement(V(0, 0, 6.6), App.Rotation())
add_polygon(sketch13, [(-45.3, 102.7), (-42.3, 102.7), (-42.3, 106.2), (-45.3, 106.2)])  # lines 0-3
sketch13.addConstraint(Sketcher.Constraint("Horizontal", 0))
sketch13.addConstraint(Sketcher.Constraint("Vertical", 1))
sketch13.addConstraint(Sketcher.Constraint("Horizontal", 2))
sketch13.addConstraint(Sketcher.Constraint("Vertical", 3))
sketch13.addConstraint(Sketcher.Constraint("DistanceX", 0, 1, 0, 2, 3.0))
sketch13.addConstraint(Sketcher.Constraint("DistanceY", 1, 1, 1, 2, 3.5))
sketch13.addConstraint(Sketcher.Constraint("DistanceX", 0, 2, -1, 1, 42.3093))
sketch13.addConstraint(Sketcher.Constraint("DistanceY", -1, 1, 0, 2, 102.6705))
pad4 = body.newObject("PartDesign::Pad", "Pad003")
pad4.Profile = sketch13
pad4.Length = 1.5

doc.recompute()
